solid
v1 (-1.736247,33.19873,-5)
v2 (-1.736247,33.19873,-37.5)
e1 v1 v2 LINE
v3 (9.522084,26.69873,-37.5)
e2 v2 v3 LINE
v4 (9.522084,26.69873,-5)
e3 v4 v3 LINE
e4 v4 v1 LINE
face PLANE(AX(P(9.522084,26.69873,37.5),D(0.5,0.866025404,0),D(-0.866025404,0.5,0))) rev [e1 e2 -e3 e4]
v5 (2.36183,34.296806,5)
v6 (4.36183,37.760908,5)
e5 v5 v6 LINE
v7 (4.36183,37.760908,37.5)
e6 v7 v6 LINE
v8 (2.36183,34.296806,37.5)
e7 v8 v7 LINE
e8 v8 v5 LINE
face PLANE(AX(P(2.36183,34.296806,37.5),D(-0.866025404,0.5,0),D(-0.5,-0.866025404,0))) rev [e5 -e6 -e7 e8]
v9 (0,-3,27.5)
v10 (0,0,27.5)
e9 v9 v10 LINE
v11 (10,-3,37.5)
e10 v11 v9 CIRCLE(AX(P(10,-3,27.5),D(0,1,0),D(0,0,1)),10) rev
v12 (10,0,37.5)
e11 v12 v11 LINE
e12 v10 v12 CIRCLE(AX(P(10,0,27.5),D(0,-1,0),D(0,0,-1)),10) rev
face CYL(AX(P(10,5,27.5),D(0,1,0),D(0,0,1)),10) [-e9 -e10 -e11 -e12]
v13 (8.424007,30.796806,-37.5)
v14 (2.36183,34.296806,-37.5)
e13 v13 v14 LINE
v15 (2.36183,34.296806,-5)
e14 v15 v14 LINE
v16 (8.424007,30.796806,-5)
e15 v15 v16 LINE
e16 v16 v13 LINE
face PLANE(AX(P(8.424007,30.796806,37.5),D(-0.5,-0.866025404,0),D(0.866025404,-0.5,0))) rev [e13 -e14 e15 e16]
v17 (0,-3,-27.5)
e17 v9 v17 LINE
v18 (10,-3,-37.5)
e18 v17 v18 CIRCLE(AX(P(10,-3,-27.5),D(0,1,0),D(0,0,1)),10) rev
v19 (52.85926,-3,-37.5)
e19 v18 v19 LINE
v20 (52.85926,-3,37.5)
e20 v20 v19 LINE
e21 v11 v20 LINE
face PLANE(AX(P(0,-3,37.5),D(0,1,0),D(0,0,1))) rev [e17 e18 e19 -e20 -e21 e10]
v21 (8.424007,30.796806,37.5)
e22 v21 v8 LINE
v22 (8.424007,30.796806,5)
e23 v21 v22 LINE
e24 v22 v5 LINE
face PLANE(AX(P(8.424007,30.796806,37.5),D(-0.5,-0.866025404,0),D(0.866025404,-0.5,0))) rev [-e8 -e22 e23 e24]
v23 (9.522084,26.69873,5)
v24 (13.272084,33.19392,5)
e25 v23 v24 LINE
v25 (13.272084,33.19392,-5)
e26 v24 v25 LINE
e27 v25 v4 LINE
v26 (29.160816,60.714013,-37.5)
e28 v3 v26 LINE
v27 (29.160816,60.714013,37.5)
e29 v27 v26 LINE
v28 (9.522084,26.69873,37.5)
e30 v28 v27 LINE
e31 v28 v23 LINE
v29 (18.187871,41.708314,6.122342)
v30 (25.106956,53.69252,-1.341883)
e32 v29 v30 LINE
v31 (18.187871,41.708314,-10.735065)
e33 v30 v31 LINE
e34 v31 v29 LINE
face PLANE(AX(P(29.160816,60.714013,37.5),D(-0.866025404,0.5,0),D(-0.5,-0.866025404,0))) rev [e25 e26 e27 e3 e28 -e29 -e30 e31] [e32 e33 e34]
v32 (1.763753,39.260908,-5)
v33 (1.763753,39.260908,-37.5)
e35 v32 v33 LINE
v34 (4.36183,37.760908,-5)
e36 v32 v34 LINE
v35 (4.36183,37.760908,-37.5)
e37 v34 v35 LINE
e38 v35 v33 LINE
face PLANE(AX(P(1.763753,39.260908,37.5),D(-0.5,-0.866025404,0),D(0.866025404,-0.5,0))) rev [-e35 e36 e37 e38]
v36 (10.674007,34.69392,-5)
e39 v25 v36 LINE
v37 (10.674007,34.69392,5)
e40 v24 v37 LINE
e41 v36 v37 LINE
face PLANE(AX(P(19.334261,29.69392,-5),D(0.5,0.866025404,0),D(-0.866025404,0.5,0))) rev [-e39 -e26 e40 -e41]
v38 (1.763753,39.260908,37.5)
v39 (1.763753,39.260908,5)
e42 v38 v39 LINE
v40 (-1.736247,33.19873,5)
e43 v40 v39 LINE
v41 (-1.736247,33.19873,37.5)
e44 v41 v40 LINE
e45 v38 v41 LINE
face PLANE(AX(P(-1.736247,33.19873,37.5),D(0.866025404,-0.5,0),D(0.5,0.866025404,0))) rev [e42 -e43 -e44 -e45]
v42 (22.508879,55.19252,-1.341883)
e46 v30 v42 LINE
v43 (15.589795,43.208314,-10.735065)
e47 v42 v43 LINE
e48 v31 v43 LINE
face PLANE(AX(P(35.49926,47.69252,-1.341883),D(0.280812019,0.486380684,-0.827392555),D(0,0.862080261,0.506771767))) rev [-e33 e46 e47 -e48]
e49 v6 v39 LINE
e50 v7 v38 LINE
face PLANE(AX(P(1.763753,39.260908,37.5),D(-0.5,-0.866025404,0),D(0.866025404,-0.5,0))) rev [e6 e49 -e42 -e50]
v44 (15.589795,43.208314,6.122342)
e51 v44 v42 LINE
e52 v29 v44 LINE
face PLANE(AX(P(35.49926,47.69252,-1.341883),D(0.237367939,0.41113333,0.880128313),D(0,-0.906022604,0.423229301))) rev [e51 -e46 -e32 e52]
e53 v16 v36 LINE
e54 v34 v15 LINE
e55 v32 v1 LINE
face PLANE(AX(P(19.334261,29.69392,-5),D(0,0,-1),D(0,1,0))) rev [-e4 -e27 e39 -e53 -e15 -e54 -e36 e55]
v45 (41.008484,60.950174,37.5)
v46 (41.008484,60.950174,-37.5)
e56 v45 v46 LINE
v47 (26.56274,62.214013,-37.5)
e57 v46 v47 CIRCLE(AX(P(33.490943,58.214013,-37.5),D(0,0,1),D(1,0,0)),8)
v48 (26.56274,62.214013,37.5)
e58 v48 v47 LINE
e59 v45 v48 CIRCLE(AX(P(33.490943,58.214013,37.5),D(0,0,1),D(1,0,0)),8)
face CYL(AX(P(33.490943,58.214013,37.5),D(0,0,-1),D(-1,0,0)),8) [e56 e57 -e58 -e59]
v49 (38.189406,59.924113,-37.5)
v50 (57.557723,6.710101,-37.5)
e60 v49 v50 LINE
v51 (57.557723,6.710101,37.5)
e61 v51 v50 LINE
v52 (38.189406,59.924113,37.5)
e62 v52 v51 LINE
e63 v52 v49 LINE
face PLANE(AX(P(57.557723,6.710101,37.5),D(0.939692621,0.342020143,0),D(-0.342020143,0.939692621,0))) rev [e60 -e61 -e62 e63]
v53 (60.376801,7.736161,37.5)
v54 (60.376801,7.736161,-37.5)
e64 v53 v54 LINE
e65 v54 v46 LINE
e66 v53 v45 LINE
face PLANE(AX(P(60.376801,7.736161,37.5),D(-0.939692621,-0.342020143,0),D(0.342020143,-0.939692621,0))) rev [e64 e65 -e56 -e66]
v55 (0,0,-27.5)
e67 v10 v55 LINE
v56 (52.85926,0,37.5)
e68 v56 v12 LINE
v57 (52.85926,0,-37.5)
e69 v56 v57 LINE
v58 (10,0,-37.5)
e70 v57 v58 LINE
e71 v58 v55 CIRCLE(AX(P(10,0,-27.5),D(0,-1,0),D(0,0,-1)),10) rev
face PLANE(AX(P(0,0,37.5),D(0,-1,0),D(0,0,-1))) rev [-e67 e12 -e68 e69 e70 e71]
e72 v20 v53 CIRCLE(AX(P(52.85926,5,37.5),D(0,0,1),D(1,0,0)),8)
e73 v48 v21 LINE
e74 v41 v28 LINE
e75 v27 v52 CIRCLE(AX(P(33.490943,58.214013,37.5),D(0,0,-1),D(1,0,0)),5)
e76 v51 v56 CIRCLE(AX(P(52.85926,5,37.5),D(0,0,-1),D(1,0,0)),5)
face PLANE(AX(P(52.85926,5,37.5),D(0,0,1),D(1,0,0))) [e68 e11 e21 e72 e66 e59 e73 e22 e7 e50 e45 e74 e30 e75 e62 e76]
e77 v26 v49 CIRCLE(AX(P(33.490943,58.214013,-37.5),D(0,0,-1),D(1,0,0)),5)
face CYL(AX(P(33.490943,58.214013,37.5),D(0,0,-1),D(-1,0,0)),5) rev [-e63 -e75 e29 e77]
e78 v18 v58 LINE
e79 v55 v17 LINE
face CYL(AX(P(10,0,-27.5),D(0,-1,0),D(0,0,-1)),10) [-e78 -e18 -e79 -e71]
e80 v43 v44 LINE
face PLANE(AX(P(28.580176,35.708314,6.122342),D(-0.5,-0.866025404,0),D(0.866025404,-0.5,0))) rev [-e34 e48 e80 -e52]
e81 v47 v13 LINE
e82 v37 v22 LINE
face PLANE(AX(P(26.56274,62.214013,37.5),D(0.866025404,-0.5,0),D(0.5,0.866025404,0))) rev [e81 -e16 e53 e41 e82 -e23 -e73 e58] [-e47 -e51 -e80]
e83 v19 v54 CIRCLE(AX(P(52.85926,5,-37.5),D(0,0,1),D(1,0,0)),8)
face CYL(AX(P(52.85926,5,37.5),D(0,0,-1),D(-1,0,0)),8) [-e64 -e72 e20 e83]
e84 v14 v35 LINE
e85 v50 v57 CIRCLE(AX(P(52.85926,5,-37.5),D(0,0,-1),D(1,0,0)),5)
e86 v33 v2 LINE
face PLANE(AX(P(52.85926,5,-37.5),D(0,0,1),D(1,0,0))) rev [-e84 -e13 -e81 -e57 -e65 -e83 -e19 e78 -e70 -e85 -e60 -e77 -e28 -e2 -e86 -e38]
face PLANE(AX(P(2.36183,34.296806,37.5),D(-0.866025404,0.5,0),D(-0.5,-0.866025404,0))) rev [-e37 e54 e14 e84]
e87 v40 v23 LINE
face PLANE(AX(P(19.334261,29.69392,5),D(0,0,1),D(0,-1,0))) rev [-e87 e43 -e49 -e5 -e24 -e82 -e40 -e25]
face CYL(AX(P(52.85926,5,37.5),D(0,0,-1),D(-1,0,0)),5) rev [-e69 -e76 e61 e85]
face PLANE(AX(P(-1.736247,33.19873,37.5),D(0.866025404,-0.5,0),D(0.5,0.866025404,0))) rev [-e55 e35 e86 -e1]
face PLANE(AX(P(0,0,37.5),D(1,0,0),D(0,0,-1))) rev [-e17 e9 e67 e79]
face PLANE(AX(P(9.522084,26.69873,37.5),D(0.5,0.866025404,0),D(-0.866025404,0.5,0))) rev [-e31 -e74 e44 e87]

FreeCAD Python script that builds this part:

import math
import FreeCAD as App
import Part
import Sketcher
from FreeCAD import Vector
Q = App.Units.Quantity


def edges_at(feature, points):
    """Names of the edges that pass closest to the given points."""
    edges = feature.Shape.Edges
    near = lambda p: min(range(len(edges)), key=lambda i: edges[i].distToShape(Part.Vertex(*p))[0])
    return sorted({f"Edge{near(p) + 1}" for p in points})

doc = App.newDocument("Part")
params = doc.addObject("Spreadsheet::Sheet", "Params")
for row, (alias, value) in enumerate([
    ("sketch1_radius", "8 mm"),
    ("sketch1_radius2", "5 mm"),
    ("sketch1_length", "7 mm"),
    ("sketch1_length2", "4 mm"),
    ("sketch1_length3", "3 mm"),
    ("pad1_length", "75 mm"),
    ("sketch2_width", "10 mm"),
    ("sketch2_height", "15 mm"),
    ("pocket1_length", "20 mm"),
    ("fillet_radius", "10 mm"),
    ("fillet2_radius", "10 mm"),
    ("pocket2_length", "15 mm"),
], start=1):
    params.set(f"A{row}", alias)
    params.set(f"B{row}", "=" + value)
    params.setAlias(f"B{row}", alias)

body = doc.addObject("PartDesign::Body", "Body")

sketch1 = doc.addObject("Sketcher::SketchObject", "Sketch")
body.addObject(sketch1)
sketch1.AttachmentSupport = (doc.XY_Plane, [""])
sketch1.MapMode = "FlatFace"
sketch1.addGeometry([
    Part.LineSegment(Vector(52.85926, 0, 0), Vector(0, 0, 0)),
    Part.LineSegment(Vector(0, 0, 0), Vector(0, -3, 0)),
    Part.LineSegment(Vector(0, -3, 0), Vector(52.85926, -3, 0)),
    Part.ArcOfCircle(Part.Circle(Vector(52.85926, 5, 0), Vector(0, 0, 1), 8), math.radians(-90), math.radians(20)),
    Part.LineSegment(Vector(60.376801, 7.736161, 0), Vector(41.008484, 60.950174, 0)),
    Part.ArcOfCircle(Part.Circle(Vector(33.490943, 58.214013, 0), Vector(0, 0, 1), 8), math.radians(20), math.radians(150)),
    Part.LineSegment(Vector(26.56274, 62.214013, 0), Vector(8.424007, 30.796806, 0)),
    Part.LineSegment(Vector(8.424007, 30.796806, 0), Vector(2.36183, 34.296806, 0)),
    Part.LineSegment(Vector(2.36183, 34.296806, 0), Vector(4.36183, 37.760908, 0)),
    Part.LineSegment(Vector(4.36183, 37.760908, 0), Vector(1.763753, 39.260908, 0)),
    Part.LineSegment(Vector(1.763753, 39.260908, 0), Vector(-1.736247, 33.19873, 0)),
    Part.LineSegment(Vector(-1.736247, 33.19873, 0), Vector(9.522084, 26.69873, 0)),
    Part.LineSegment(Vector(9.522084, 26.69873, 0), Vector(29.160816, 60.714013, 0)),
    Part.ArcOfCircle(Part.Circle(Vector(33.490943, 58.214013, 0), Vector(0, 0, 1), 5), math.radians(20), math.radians(150)),
    Part.LineSegment(Vector(38.189406, 59.924113, 0), Vector(57.557723, 6.710101, 0)),
    Part.ArcOfCircle(Part.Circle(Vector(52.85926, 5, 0), Vector(0, 0, 1), 5), math.radians(-90), math.radians(20)),
], False)
sketch1.addConstraint([
    Sketcher.Constraint("Coincident", 0, 2, 1, 1),
    Sketcher.Constraint("Coincident", 1, 2, 2, 1),
    Sketcher.Constraint("Tangent", 2, 2, 3, 1),
    Sketcher.Constraint("Tangent", 3, 2, 4, 1),
    Sketcher.Constraint("Tangent", 4, 2, 5, 1),
    Sketcher.Constraint("Tangent", 5, 2, 6, 1),
    Sketcher.Constraint("Coincident", 6, 2, 7, 1),
    Sketcher.Constraint("Coincident", 7, 2, 8, 1),
    Sketcher.Constraint("Coincident", 8, 2, 9, 1),
    Sketcher.Constraint("Coincident", 9, 2, 10, 1),
    Sketcher.Constraint("Coincident", 10, 2, 11, 1),
    Sketcher.Constraint("Coincident", 11, 2, 12, 1),
    Sketcher.Constraint("Tangent", 12, 2, 13, 2),
    Sketcher.Constraint("Tangent", 13, 1, 14, 1),
    Sketcher.Constraint("Tangent", 14, 2, 15, 2),
    Sketcher.Constraint("Tangent", 15, 1, 0, 1),
    Sketcher.Constraint("Horizontal", 0),
    Sketcher.Constraint("Vertical", 1),
    Sketcher.Constraint("Horizontal", 2),
    Sketcher.Constraint("Coincident", 0, 2, -1, 1),
    Sketcher.Constraint("Coincident", 13, 3, 5, 3),
    Sketcher.Constraint("Coincident", 15, 3, 3, 3),
    Sketcher.Constraint("Equal", 3, 5),
    Sketcher.Constraint("Equal", 13, 15),
    Sketcher.Constraint("Perpendicular", 6, 7),
    Sketcher.Constraint("Perpendicular", 7, 8),
    Sketcher.Constraint("Perpendicular", 8, 9),
    Sketcher.Constraint("Perpendicular", 9, 10),
    Sketcher.Constraint("Perpendicular", 10, 11),
    Sketcher.Constraint("Perpendicular", 11, 12),
    Sketcher.Constraint("Equal", 7, 10),
    Sketcher.Constraint("Radius", 3, 8.0),
    Sketcher.Constraint("Radius", 13, 5.0),
    Sketcher.Constraint("Angle", 4, Q("110 deg")),
    Sketcher.Constraint("Angle", 6, Q("-120 deg")),
    Sketcher.Constraint("Distance", 7, 7.0),
    Sketcher.Constraint("Distance", 8, 4.0),
    Sketcher.Constraint("Distance", 9, 3.0),
    Sketcher.Constraint("DistanceX", 0, 2, 0, 1, 52.85926),
    Sketcher.Constraint("Distance", 4, 56.629169),
    Sketcher.Constraint("DistanceX", -1, 1, 7, 2, 2.36183),
])
sketch1.setExpression("Constraints[31]", "Params.sketch1_radius")
sketch1.setExpression("Constraints[32]", "Params.sketch1_radius2")
sketch1.setExpression("Constraints[35]", "Params.sketch1_length")
sketch1.setExpression("Constraints[36]", "Params.sketch1_length2")
sketch1.setExpression("Constraints[37]", "Params.sketch1_length3")
pad1 = doc.addObject("PartDesign::Pad", "Pad")
body.addObject(pad1)
pad1.Profile = sketch1
pad1.setExpression("Length", "Params.pad1_length")
pad1.Midplane = True

sketch2 = doc.addObject("Sketcher::SketchObject", "Sketch001")
body.addObject(sketch2)
sketch2.Placement = App.Placement(Vector(-15.677657, 9.051499, 0), App.Rotation(Vector(0, 0, 1), Vector(0.5, 0.866025404, 0), Vector(-0.866025404, 0.5, 0), "ZXY"))
sketch2.addGeometry([
    Part.LineSegment(Vector(-5, 35.38282, 0), Vector(-5, 20.38282, 0)),
    Part.LineSegment(Vector(-5, 20.38282, 0), Vector(5, 20.38282, 0)),
    Part.LineSegment(Vector(5, 20.38282, 0), Vector(5, 35.38282, 0)),
    Part.LineSegment(Vector(5, 35.38282, 0), Vector(-5, 35.38282, 0)),
], False)
sketch2.addConstraint([
    Sketcher.Constraint("Coincident", 0, 2, 1, 1),
    Sketcher.Constraint("Coincident", 1, 2, 2, 1),
    Sketcher.Constraint("Coincident", 2, 2, 3, 1),
    Sketcher.Constraint("Coincident", 3, 2, 0, 1),
    Sketcher.Constraint("Vertical", 0),
    Sketcher.Constraint("Horizontal", 1),
    Sketcher.Constraint("Vertical", 2),
    Sketcher.Constraint("Horizontal", 3),
    Sketcher.Constraint("DistanceX", 1, 1, 1, 2, 10.0),
    Sketcher.Constraint("DistanceY", 0, 2, 0, 1, 15.0),
    Sketcher.Constraint("DistanceX", 0, 2, -1, 1, 5.0),
    Sketcher.Constraint("DistanceY", -1, 1, 0, 2, 20.38282),
])
sketch2.setExpression("Constraints[8]", "Params.sketch2_width")
sketch2.setExpression("Constraints[9]", "Params.sketch2_height")
pocket1 = doc.addObject("PartDesign::Pocket", "Pocket")
body.addObject(pocket1)
pocket1.Profile = sketch2
pocket1.setExpression("Length", "Params.pocket1_length")
doc.recompute()

fillet = doc.addObject("PartDesign::Fillet", "Fillet")
body.addObject(fillet)
fillet.Base = (pocket1, edges_at(pocket1, [(0, -1.5, -37.5)]))
fillet.setExpression("Radius", "Params.fillet_radius")
doc.recompute()

fillet2 = doc.addObject("PartDesign::Fillet", "Fillet001")
body.addObject(fillet2)
fillet2.Base = (fillet, edges_at(fillet, [(0, -1.5, 37.5)]))
fillet2.setExpression("Radius", "Params.fillet2_radius")

sketch3 = doc.addObject("Sketcher::SketchObject", "Sketch002")
body.addObject(sketch3)
sketch3.Placement = App.Placement(Vector(-7.017403, 4.051499, 0), App.Rotation(Vector(0, 0, 1), Vector(0.5, 0.866025404, 0), Vector(-0.866025404, 0.5, 0), "ZXY"))
sketch3.addGeometry([
    Part.LineSegment(Vector(-1.341883, 59.052564, 0), Vector(-10.735065, 45.214395, 0)),
    Part.LineSegment(Vector(-10.735065, 45.214395, 0), Vector(6.122342, 45.214395, 0)),
    Part.LineSegment(Vector(6.122342, 45.214395, 0), Vector(-1.341883, 59.052564, 0)),
], False)
sketch3.addConstraint([
    Sketcher.Constraint("Coincident", 0, 2, 1, 1),
    Sketcher.Constraint("Coincident", 1, 2, 2, 1),
    Sketcher.Constraint("Coincident", 2, 2, 0, 1),
    Sketcher.Constraint("Horizontal", 1),
    Sketcher.Constraint("Distance", 2, 15.7229),
    Sketcher.Constraint("DistanceX", 1, 1, 1, 2, 16.857406),
    Sketcher.Constraint("DistanceX", -1, 1, 1, 2, 6.122342),
    Sketcher.Constraint("DistanceY", 1, 2, 2, 2, 13.838169),
    Sketcher.Constraint("DistanceY", -1, 1, 0, 2, 45.214395),
])
pocket2 = doc.addObject("PartDesign::Pocket", "Pocket001")
body.addObject(pocket2)
pocket2.Profile = sketch3
pocket2.setExpression("Length", "Params.pocket2_length")

doc.recompute()
